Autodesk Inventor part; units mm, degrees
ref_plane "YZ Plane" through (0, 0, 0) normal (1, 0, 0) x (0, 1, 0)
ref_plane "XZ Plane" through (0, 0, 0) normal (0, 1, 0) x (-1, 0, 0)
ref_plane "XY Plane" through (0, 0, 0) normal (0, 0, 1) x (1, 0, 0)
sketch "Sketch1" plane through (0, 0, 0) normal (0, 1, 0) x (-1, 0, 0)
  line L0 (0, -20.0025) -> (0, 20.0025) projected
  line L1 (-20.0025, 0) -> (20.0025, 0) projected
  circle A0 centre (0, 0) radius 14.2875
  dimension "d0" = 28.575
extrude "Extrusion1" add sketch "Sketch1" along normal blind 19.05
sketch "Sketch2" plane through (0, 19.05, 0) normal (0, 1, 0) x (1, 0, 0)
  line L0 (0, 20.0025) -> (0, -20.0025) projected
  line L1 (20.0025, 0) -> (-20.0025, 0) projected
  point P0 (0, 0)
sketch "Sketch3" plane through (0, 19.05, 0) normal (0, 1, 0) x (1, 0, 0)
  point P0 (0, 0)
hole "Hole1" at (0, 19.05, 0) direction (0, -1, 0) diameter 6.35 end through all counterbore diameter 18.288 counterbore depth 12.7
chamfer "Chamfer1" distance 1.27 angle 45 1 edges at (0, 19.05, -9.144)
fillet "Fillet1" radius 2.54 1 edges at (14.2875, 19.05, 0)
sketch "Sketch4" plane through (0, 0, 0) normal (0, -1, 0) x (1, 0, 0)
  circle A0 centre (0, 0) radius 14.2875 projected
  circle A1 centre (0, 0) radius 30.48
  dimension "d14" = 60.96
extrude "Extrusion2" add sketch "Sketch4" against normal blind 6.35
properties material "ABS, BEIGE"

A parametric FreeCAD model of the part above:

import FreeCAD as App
import Part
import Sketcher
Q = App.Units.Quantity


def edges_at(feature, points):
    """Names of the edges that pass closest to the given points."""
    edges = feature.Shape.Edges
    near = lambda p: min(range(len(edges)), key=lambda i: edges[i].distToShape(Part.Vertex(*p))[0])
    return sorted({f"Edge{near(p) + 1}" for p in points})

doc = App.newDocument("Part")
params = doc.addObject("Spreadsheet::Sheet", "Params")
for row, (alias, value) in enumerate([
    ("sketch1_diameter", "1.125 in"),
    ("pad1_length", "0.75 in"),
    ("sketch2_diameter", "0.25 in"),
    ("hole_diameter", "0.25 in"),
    ("hole_cbore_diameter", "0.72 in"),
    ("hole_cbore_depth", "0.5 in"),
    ("chamfer_size", "0.05 in"),
    ("fillet_radius", "0.1 in"),
    ("sketch3_diameter", "2.4 in"),
    ("sketch3_diameter2", "1.125 in"),
    ("pad2_length", "0.25 in"),
], start=1):
    params.set(f"A{row}", alias)
    params.set(f"B{row}", "=" + value)
    params.setAlias(f"B{row}", alias)

body = doc.addObject("PartDesign::Body", "Body")

# Sketch on XZ plane
sketch1 = doc.addObject("Sketcher::SketchObject", "Sketch")
body.addObject(sketch1)
sketch1.AttachmentSupport = (doc.XZ_Plane, [""])
sketch1.MapMode = "FlatFace"
sketch1.addGeometry(Part.Circle(App.Vector(0, 0, 0), App.Vector(0, 0, 1), 14), False)
sketch1.addConstraint([
    Sketcher.Constraint("Coincident", 0, 3, -1, 1),
    Sketcher.Constraint("Diameter", 0, Q("1.125 in")),
])
sketch1.setExpression("Constraints[1]", "Params.sketch1_diameter")
pad1 = doc.addObject("PartDesign::Pad", "Pad")
body.addObject(pad1)
pad1.Profile = sketch1
pad1.setExpression("Length", "Params.pad1_length")
pad1.Reversed = True

# Sketch on XZ plane
sketch2 = doc.addObject("Sketcher::SketchObject", "Sketch001")
body.addObject(sketch2)
sketch2.AttachmentSupport = (doc.XZ_Plane, [""])
sketch2.MapMode = "FlatFace"
sketch2.AttachmentOffset = App.Placement(App.Vector(0, 0, -0.75 * 25.4), App.Rotation())
sketch2.addGeometry(Part.Circle(App.Vector(0, 0, 0), App.Vector(0, 0, 1), 3.2), False)
sketch2.addConstraint([
    Sketcher.Constraint("Coincident", 0, 3, -1, 1),
    Sketcher.Constraint("Diameter", 0, Q("0.25 in")),
])
sketch2.setExpression("Constraints[1]", "Params.sketch2_diameter")
doc.recompute()
hole = doc.addObject("PartDesign::Hole", "Hole")
body.addObject(hole)
hole.Profile = sketch2
hole.ThreadType = "None"
hole.setExpression("Diameter", "Params.hole_diameter")
hole.DepthType = "ThroughAll"
hole.HoleCutType = "Counterbore"
hole.setExpression("HoleCutDiameter", "Params.hole_cbore_diameter")
hole.setExpression("HoleCutDepth", "Params.hole_cbore_depth")
hole.Reversed = True
doc.recompute()

chamfer = doc.addObject("PartDesign::Chamfer", "Chamfer")
body.addObject(chamfer)
chamfer.Base = (hole, edges_at(hole, [(0, 19.05, -9.144)]))
chamfer.setExpression("Size", "Params.chamfer_size")
doc.recompute()

fillet = doc.addObject("PartDesign::Fillet", "Fillet")
body.addObject(fillet)
fillet.Base = (chamfer, edges_at(chamfer, [(14.287, 19.05, 0)]))
fillet.setExpression("Radius", "Params.fillet_radius")

# Sketch on XZ plane
sketch3 = doc.addObject("Sketcher::SketchObject", "Sketch002")
body.addObject(sketch3)
sketch3.AttachmentSupport = (doc.XZ_Plane, [""])
sketch3.MapMode = "FlatFace"
sketch3.addGeometry([
    Part.Circle(App.Vector(0, 0, 0), App.Vector(0, 0, 1), 30),
    Part.Circle(App.Vector(0, 0, 0), App.Vector(0, 0, 1), 14),
], False)
sketch3.addConstraint([
    Sketcher.Constraint("Coincident", 0, 3, -1, 1),
    Sketcher.Constraint("Coincident", 1, 3, -1, 1),
    Sketcher.Constraint("Diameter", 0, Q("2.4 in")),
    Sketcher.Constraint("Diameter", 1, Q("1.125 in")),
])
sketch3.setExpression("Constraints[2]", "Params.sketch3_diameter")
sketch3.setExpression("Constraints[3]", "Params.sketch3_diameter2")
pad2 = doc.addObject("PartDesign::Pad", "Pad001")
body.addObject(pad2)
pad2.Profile = sketch3
pad2.setExpression("Length", "Params.pad2_length")
pad2.Reversed = True

doc.recompute()
